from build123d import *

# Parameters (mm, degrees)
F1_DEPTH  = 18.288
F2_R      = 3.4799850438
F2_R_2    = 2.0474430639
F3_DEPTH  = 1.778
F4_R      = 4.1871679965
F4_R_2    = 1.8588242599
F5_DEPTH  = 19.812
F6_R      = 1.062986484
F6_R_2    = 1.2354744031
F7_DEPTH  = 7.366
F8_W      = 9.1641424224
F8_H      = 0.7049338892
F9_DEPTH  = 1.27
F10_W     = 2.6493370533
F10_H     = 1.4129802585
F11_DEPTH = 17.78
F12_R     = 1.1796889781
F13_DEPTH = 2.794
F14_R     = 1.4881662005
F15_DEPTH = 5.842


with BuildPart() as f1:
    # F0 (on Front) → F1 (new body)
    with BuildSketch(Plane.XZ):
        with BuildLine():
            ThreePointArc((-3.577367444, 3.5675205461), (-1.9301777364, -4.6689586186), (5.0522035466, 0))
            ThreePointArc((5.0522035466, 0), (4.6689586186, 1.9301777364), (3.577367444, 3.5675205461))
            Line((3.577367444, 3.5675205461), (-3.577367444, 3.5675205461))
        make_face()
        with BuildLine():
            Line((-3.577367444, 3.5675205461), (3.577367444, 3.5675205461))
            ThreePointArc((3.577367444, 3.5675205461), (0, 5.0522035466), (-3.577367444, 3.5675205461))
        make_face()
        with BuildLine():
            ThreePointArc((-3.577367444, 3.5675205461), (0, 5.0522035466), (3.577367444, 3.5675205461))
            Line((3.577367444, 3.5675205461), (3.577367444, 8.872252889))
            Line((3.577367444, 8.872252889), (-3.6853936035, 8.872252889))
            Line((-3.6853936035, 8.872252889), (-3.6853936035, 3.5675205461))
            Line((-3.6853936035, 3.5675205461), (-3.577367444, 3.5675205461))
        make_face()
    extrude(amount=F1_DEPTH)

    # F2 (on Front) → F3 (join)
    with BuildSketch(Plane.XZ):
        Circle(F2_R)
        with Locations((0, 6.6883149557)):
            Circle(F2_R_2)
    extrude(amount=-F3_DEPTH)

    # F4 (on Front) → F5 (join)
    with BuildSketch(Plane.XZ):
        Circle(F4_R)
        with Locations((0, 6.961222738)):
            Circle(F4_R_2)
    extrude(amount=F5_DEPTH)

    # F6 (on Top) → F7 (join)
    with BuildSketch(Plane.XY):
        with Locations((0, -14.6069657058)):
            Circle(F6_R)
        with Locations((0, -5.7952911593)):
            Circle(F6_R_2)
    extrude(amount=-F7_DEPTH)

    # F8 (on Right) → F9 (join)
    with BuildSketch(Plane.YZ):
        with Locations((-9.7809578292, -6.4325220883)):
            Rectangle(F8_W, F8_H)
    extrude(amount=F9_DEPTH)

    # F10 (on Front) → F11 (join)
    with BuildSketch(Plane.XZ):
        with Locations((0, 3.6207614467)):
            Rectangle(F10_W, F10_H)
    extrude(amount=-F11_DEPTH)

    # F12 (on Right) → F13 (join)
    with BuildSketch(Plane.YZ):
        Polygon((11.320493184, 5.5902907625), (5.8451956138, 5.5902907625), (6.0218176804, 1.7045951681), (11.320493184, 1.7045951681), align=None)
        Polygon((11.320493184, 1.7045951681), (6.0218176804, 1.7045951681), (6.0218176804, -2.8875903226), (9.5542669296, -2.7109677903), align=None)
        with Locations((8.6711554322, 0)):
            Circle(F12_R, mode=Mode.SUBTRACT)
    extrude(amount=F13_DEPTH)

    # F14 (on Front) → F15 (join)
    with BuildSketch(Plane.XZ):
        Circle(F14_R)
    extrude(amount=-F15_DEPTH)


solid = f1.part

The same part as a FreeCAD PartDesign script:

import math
import FreeCAD as App
import Part
import Sketcher
Q = App.Units.Quantity

doc = App.newDocument("Part")
body = doc.addObject("PartDesign::Body", "Body")

# Sketch on XZ plane
sketch1 = body.newObject("Sketcher::SketchObject", "Sketch")
sketch1.AttachmentSupport = (doc.getObject("XZ_Plane"), [""])
sketch1.MapMode = "FlatFace"
sketch1.addGeometry(Part.ArcOfCircle(Part.Circle(App.Vector(0, 0, 0), App.Vector(0, 0, 1), 5.052204), math.radians(135.078963), math.radians(360)), False)
sketch1.addGeometry(Part.ArcOfCircle(Part.Circle(App.Vector(0, 0, 0), App.Vector(0, 0, 1), 5.052204), math.radians(0), math.radians(44.921037)), False)
sketch1.addGeometry(Part.LineSegment(App.Vector(3.577367, 3.567521, 0), App.Vector(3.577367, 8.872253, 0)), False)
sketch1.addGeometry(Part.LineSegment(App.Vector(3.577367, 8.872253, 0), App.Vector(-3.685394, 8.872253, 0)), False)
sketch1.addGeometry(Part.LineSegment(App.Vector(-3.685394, 8.872253, 0), App.Vector(-3.685394, 3.567521, 0)), False)
sketch1.addGeometry(Part.LineSegment(App.Vector(-3.685394, 3.567521, 0), App.Vector(-3.577367, 3.567521, 0)), False)
sketch1.addConstraint(Sketcher.Constraint("Tangent", 0, 2, 1, 1))
sketch1.addConstraint(Sketcher.Constraint("Coincident", 1, 2, 2, 1))
sketch1.addConstraint(Sketcher.Constraint("Coincident", 2, 2, 3, 1))
sketch1.addConstraint(Sketcher.Constraint("Coincident", 3, 2, 4, 1))
sketch1.addConstraint(Sketcher.Constraint("Coincident", 4, 2, 5, 1))
sketch1.addConstraint(Sketcher.Constraint("Coincident", 5, 2, 0, 1))
sketch1.addConstraint(Sketcher.Constraint("Vertical", 2))
sketch1.addConstraint(Sketcher.Constraint("Horizontal", 3))
sketch1.addConstraint(Sketcher.Constraint("Vertical", 4))
sketch1.addConstraint(Sketcher.Constraint("Horizontal", 5))
sketch1.addConstraint(Sketcher.Constraint("Coincident", 0, 3, -1, 1))
sketch1.addConstraint(Sketcher.Constraint("Equal", 0, 1))
sketch1.addConstraint(Sketcher.Constraint("PointOnObject", 0, 2, -1))
sketch1.addConstraint(Sketcher.Constraint("Horizontal", 1, 2, 4, 2))
sketch1.addConstraint(Sketcher.Constraint("DistanceX", 3, 2, 0, 2, Q("0.3439999 in")))
sketch1.addConstraint(Sketcher.Constraint("Radius", 0, Q("5.052204 mm")))
sketch1.addConstraint(Sketcher.Constraint("DistanceX", 3, 2, 3, 1, Q("7.262761 mm")))
sketch1.addConstraint(Sketcher.Constraint("DistanceY", 2, 1, 2, 2, Q("5.304732 mm")))
pad1 = body.newObject("PartDesign::Pad", "Pad")
pad1.Profile = sketch1
pad1.Length = Q("0.72 in")

# Sketch on XZ plane
sketch2 = body.newObject("Sketcher::SketchObject", "Sketch001")
sketch2.AttachmentSupport = (doc.getObject("XZ_Plane"), [""])
sketch2.MapMode = "FlatFace"
sketch2.addGeometry(Part.Circle(App.Vector(0, 0, 0), App.Vector(0, 0, 1), 3.479985), False)
sketch2.addGeometry(Part.Circle(App.Vector(0, 6.688315, 0), App.Vector(0, 0, 1), 2.047443), False)
sketch2.addConstraint(Sketcher.Constraint("Coincident", 0, 3, -1, 1))
sketch2.addConstraint(Sketcher.Constraint("PointOnObject", 1, 3, -2))
sketch2.addConstraint(Sketcher.Constraint("Diameter", 0, Q("6.95997 mm")))
sketch2.addConstraint(Sketcher.Constraint("Diameter", 1, Q("4.094886 mm")))
sketch2.addConstraint(Sketcher.Constraint("DistanceY", -1, 1, 1, 3, Q("6.688315 mm")))
pad2 = body.newObject("PartDesign::Pad", "Pad001")
pad2.Profile = sketch2
pad2.Length = Q("0.07 in")
pad2.Reversed = True

# Sketch on XZ plane
sketch3 = body.newObject("Sketcher::SketchObject", "Sketch002")
sketch3.AttachmentSupport = (doc.getObject("XZ_Plane"), [""])
sketch3.MapMode = "FlatFace"
sketch3.addGeometry(Part.Circle(App.Vector(0, 0, 0), App.Vector(0, 0, 1), 4.187168), False)
sketch3.addGeometry(Part.Circle(App.Vector(0, 6.961223, 0), App.Vector(0, 0, 1), 1.858824), False)
sketch3.addConstraint(Sketcher.Constraint("Coincident", 0, 3, -1, 1))
sketch3.addConstraint(Sketcher.Constraint("PointOnObject", 1, 3, -2))
sketch3.addConstraint(Sketcher.Constraint("Diameter", 1, Q("3.717649 mm")))
sketch3.addConstraint(Sketcher.Constraint("Diameter", 0, Q("8.374336 mm")))
sketch3.addConstraint(Sketcher.Constraint("DistanceY", -1, 1, 1, 3, Q("6.961223 mm")))
pad3 = body.newObject("PartDesign::Pad", "Pad002")
pad3.Profile = sketch3
pad3.Length = Q("0.78 in")

# Sketch on XY plane
sketch4 = body.newObject("Sketcher::SketchObject", "Sketch003")
sketch4.AttachmentSupport = (doc.getObject("XY_Plane"), [""])
sketch4.MapMode = "FlatFace"
sketch4.addGeometry(Part.Circle(App.Vector(0, -14.606966, 0), App.Vector(0, 0, 1), 1.062986), False)
sketch4.addGeometry(Part.Circle(App.Vector(0, -5.795291, 0), App.Vector(0, 0, 1), 1.235474), False)
sketch4.addConstraint(Sketcher.Constraint("PointOnObject", 0, 3, -2))
sketch4.addConstraint(Sketcher.Constraint("PointOnObject", 1, 3, -2))
sketch4.addConstraint(Sketcher.Constraint("Diameter", 1, Q("2.470949 mm")))
sketch4.addConstraint(Sketcher.Constraint("Diameter", 0, Q("2.125973 mm")))
sketch4.addConstraint(Sketcher.Constraint("DistanceY", 1, 3, -1, 1, Q("5.795291 mm")))
sketch4.addConstraint(Sketcher.Constraint("DistanceY", 0, 3, -1, 1, Q("14.606966 mm")))
pad4 = body.newObject("PartDesign::Pad", "Pad003")
pad4.Profile = sketch4
pad4.Length = Q("0.29 in")
pad4.Reversed = True

# Sketch on YZ plane
sketch5 = body.newObject("Sketcher::SketchObject", "Sketch004")
sketch5.AttachmentSupport = (doc.getObject("YZ_Plane"), [""])
sketch5.MapMode = "FlatFace"
sketch5.addGeometry(Part.LineSegment(App.Vector(-14.363029, -6.080055, 0), App.Vector(-14.363029, -6.784989, 0)), False)
sketch5.addGeometry(Part.LineSegment(App.Vector(-14.363029, -6.784989, 0), App.Vector(-5.198887, -6.784989, 0)), False)
sketch5.addGeometry(Part.LineSegment(App.Vector(-5.198887, -6.784989, 0), App.Vector(-5.198887, -6.080055, 0)), False)
sketch5.addGeometry(Part.LineSegment(App.Vector(-5.198887, -6.080055, 0), App.Vector(-14.363029, -6.080055, 0)), False)
sketch5.addConstraint(Sketcher.Constraint("Coincident", 0, 2, 1, 1))
sketch5.addConstraint(Sketcher.Constraint("Coincident", 1, 2, 2, 1))
sketch5.addConstraint(Sketcher.Constraint("Coincident", 2, 2, 3, 1))
sketch5.addConstraint(Sketcher.Constraint("Coincident", 3, 2, 0, 1))
sketch5.addConstraint(Sketcher.Constraint("Vertical", 0))
sketch5.addConstraint(Sketcher.Constraint("Horizontal", 1))
sketch5.addConstraint(Sketcher.Constraint("Vertical", 2))
sketch5.addConstraint(Sketcher.Constraint("Horizontal", 3))
sketch5.addConstraint(Sketcher.Constraint("DistanceX", 1, 1, 1, 2, Q("9.164142 mm")))
sketch5.addConstraint(Sketcher.Constraint("DistanceY", 0, 2, 0, 1, Q("0.704934 mm")))
sketch5.addConstraint(Sketcher.Constraint("DistanceX", 0, 2, -1, 1, Q("14.363029 mm")))
sketch5.addConstraint(Sketcher.Constraint("DistanceY", 0, 2, -1, 1, Q("6.784989 mm")))
pad5 = body.newObject("PartDesign::Pad", "Pad004")
pad5.Profile = sketch5
pad5.Length = Q("0.05 in")

# Sketch on XZ plane
sketch6 = body.newObject("Sketcher::SketchObject", "Sketch005")
sketch6.AttachmentSupport = (doc.getObject("XZ_Plane"), [""])
sketch6.MapMode = "FlatFace"
sketch6.addGeometry(Part.LineSegment(App.Vector(-1.324669, 4.327252, 0), App.Vector(-1.324669, 2.914271, 0)), False)
sketch6.addGeometry(Part.LineSegment(App.Vector(-1.324669, 2.914271, 0), App.Vector(1.324669, 2.914271, 0)), False)
sketch6.addGeometry(Part.LineSegment(App.Vector(1.324669, 2.914271, 0), App.Vector(1.324669, 4.327252, 0)), False)
sketch6.addGeometry(Part.LineSegment(App.Vector(1.324669, 4.327252, 0), App.Vector(-1.324669, 4.327252, 0)), False)
sketch6.addConstraint(Sketcher.Constraint("Coincident", 0, 2, 1, 1))
sketch6.addConstraint(Sketcher.Constraint("Coincident", 1, 2, 2, 1))
sketch6.addConstraint(Sketcher.Constraint("Coincident", 2, 2, 3, 1))
sketch6.addConstraint(Sketcher.Constraint("Coincident", 3, 2, 0, 1))
sketch6.addConstraint(Sketcher.Constraint("Vertical", 0))
sketch6.addConstraint(Sketcher.Constraint("Horizontal", 1))
sketch6.addConstraint(Sketcher.Constraint("Vertical", 2))
sketch6.addConstraint(Sketcher.Constraint("Horizontal", 3))
sketch6.addConstraint(Sketcher.Constraint("DistanceY", 0, 2, 0, 1, Q("1.41298 mm")))
sketch6.addConstraint(Sketcher.Constraint("DistanceX", 1, 1, 1, 2, Q("2.649337 mm")))
sketch6.addConstraint(Sketcher.Constraint("DistanceX", 0, 2, -1, 1, Q("1.324669 mm")))
sketch6.addConstraint(Sketcher.Constraint("DistanceY", -1, 1, 0, 2, Q("2.914271 mm")))
pad6 = body.newObject("PartDesign::Pad", "Pad005")
pad6.Profile = sketch6
pad6.Length = Q("0.7 in")
pad6.Reversed = True

# Sketch on YZ plane
sketch7 = body.newObject("Sketcher::SketchObject", "Sketch006")
sketch7.AttachmentSupport = (doc.getObject("YZ_Plane"), [""])
sketch7.MapMode = "FlatFace"
sketch7.addGeometry(Part.LineSegment(App.Vector(11.320493, 5.590291, 0), App.Vector(5.845196, 5.590291, 0)), False)
sketch7.addGeometry(Part.LineSegment(App.Vector(5.845196, 5.590291, 0), App.Vector(6.021818, 1.704595, 0)), False)
sketch7.addGeometry(Part.LineSegment(App.Vector(6.021818, 1.704595, 0), App.Vector(6.021818, -2.88759, 0)), False)
sketch7.addGeometry(Part.LineSegment(App.Vector(6.021818, -2.88759, 0), App.Vector(9.554267, -2.710968, 0)), False)
sketch7.addGeometry(Part.LineSegment(App.Vector(9.554267, -2.710968, 0), App.Vector(11.320493, 1.704595, 0)), False)
sketch7.addGeometry(Part.LineSegment(App.Vector(11.320493, 1.704595, 0), App.Vector(11.320493, 5.590291, 0)), False)
sketch7.addGeometry(Part.Circle(App.Vector(8.671155, 0, 0), App.Vector(0, 0, 1), 1.179689), False)
sketch7.addConstraint(Sketcher.Constraint("Coincident", 0, 2, 1, 1))
sketch7.addConstraint(Sketcher.Constraint("Coincident", 1, 2, 2, 1))
sketch7.addConstraint(Sketcher.Constraint("Coincident", 2, 2, 3, 1))
sketch7.addConstraint(Sketcher.Constraint("Coincident", 3, 2, 4, 1))
sketch7.addConstraint(Sketcher.Constraint("Coincident", 4, 2, 5, 1))
sketch7.addConstraint(Sketcher.Constraint("Coincident", 5, 2, 0, 1))
sketch7.addConstraint(Sketcher.Constraint("Horizontal", 0))
sketch7.addConstraint(Sketcher.Constraint("Vertical", 2))
sketch7.addConstraint(Sketcher.Constraint("Vertical", 5))
sketch7.addConstraint(Sketcher.Constraint("PointOnObject", 6, 3, -1))
sketch7.addConstraint(Sketcher.Constraint("Horizontal", 1, 2, 4, 2))
sketch7.addConstraint(Sketcher.Constraint("Diameter", 6, Q("2.359378 mm")))
sketch7.addConstraint(Sketcher.Constraint("DistanceX", 0, 2, 0, 1, Q("5.475298 mm")))
sketch7.addConstraint(Sketcher.Constraint("DistanceY", 2, 2, 2, 1, Q("4.592185 mm")))
sketch7.addConstraint(Sketcher.Constraint("DistanceY", 5, 1, 5, 2, Q("3.885696 mm")))
sketch7.addConstraint(Sketcher.Constraint("DistanceY", -1, 1, 0, 2, Q("5.590291 mm")))
sketch7.addConstraint(Sketcher.Constraint("DistanceX", 0, 2, 6, 3, Q("2.82596 mm")))
sketch7.addConstraint(Sketcher.Constraint("DistanceX", 6, 3, 3, 2, Q("0.883111 mm")))
sketch7.addConstraint(Sketcher.Constraint("DistanceX", 2, 2, 3, 2, Q("3.532449 mm")))
sketch7.addConstraint(Sketcher.Constraint("DistanceY", 3, 2, 0, 2, Q("8.301259 mm")))
sketch7.addConstraint(Sketcher.Constraint("DistanceX", -1, 1, 6, 3, Q("8.671155 mm")))
pad7 = body.newObject("PartDesign::Pad", "Pad006")
pad7.Profile = sketch7
pad7.Length = Q("0.11 in")

# Sketch on XZ plane
sketch8 = body.newObject("Sketcher::SketchObject", "Sketch007")
sketch8.AttachmentSupport = (doc.getObject("XZ_Plane"), [""])
sketch8.MapMode = "FlatFace"
sketch8.addGeometry(Part.Circle(App.Vector(0, 0, 0), App.Vector(0, 0, 1), 1.488166), False)
sketch8.addConstraint(Sketcher.Constraint("Coincident", 0, 3, -1, 1))
sketch8.addConstraint(Sketcher.Constraint("Diameter", 0, Q("2.976332 mm")))
pad8 = body.newObject("PartDesign::Pad", "Pad007")
pad8.Profile = sketch8
pad8.Length = Q("0.23 in")
pad8.Reversed = True

doc.recompute()
